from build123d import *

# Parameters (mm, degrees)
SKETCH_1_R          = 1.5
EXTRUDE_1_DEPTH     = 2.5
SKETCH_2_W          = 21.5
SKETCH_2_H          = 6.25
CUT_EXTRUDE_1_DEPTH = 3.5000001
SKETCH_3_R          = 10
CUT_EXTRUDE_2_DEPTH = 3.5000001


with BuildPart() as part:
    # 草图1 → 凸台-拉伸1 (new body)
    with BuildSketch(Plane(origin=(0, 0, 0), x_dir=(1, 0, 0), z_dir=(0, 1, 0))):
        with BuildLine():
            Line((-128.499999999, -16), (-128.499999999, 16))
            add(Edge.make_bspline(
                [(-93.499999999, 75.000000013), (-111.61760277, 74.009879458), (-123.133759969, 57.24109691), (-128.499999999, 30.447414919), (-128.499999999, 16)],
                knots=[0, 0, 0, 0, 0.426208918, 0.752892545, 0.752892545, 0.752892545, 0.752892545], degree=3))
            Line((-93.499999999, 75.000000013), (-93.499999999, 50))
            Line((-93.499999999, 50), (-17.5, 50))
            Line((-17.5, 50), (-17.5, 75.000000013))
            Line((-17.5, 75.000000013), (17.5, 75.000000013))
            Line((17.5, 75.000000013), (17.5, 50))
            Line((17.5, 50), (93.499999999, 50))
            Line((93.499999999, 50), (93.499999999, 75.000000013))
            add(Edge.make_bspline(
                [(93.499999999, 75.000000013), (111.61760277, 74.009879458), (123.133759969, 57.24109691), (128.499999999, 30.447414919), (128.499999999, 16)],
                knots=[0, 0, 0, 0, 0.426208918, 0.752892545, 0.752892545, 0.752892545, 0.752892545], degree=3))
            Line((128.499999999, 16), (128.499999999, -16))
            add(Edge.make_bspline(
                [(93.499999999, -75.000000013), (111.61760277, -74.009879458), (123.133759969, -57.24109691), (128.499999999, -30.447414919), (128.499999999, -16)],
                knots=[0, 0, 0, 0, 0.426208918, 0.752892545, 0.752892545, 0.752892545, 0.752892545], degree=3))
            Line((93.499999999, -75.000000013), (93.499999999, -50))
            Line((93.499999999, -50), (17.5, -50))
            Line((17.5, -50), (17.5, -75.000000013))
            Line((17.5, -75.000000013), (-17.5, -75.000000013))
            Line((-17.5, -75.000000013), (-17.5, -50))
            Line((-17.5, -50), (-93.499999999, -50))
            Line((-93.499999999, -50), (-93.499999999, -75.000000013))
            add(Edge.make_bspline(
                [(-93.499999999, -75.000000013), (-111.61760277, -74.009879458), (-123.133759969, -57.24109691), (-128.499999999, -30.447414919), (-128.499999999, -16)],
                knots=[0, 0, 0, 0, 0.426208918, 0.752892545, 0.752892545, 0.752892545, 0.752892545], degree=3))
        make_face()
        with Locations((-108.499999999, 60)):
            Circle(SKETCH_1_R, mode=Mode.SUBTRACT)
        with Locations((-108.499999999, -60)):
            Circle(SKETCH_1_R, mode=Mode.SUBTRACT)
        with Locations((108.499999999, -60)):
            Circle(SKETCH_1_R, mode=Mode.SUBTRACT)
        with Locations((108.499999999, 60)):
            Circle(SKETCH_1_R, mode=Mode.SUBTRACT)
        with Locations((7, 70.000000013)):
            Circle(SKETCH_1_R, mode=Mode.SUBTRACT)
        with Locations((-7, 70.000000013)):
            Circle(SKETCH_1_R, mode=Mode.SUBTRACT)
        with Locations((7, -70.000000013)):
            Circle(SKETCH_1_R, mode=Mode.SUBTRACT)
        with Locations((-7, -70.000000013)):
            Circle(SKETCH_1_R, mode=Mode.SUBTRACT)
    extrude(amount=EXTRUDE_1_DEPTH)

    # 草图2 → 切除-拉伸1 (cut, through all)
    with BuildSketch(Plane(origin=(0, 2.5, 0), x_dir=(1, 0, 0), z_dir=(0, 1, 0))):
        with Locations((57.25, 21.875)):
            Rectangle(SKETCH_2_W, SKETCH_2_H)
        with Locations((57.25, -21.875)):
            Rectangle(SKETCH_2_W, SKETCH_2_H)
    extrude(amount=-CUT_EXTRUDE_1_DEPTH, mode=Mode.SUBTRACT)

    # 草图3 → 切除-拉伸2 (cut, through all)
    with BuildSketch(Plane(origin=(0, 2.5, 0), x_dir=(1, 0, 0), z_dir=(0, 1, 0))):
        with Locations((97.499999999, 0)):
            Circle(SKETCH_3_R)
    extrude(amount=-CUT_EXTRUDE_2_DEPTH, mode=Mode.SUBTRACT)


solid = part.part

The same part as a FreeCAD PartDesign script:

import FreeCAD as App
import Part
import Sketcher
from FreeCAD import Vector

doc = App.newDocument("Part")
body = doc.addObject("PartDesign::Body", "Body")

sketch1 = doc.addObject("Sketcher::SketchObject", "Sketch")
body.addObject(sketch1)
sketch1.AttachmentSupport = (doc.XZ_Plane, [""])
sketch1.MapMode = "FlatFace"
sketch1.addGeometry([
    Part.LineSegment(Vector(-128.5, -16, 0), Vector(-128.5, 16, 0)),
    Part.BSplineCurve([Vector(-93.5, 75, 0), Vector(-111.617603, 74.009879, 0), Vector(-123.13376, 57.241097, 0), Vector(-128.5, 30.447415, 0), Vector(-128.5, 16, 0)], [4, 1, 4], [0, 0.426208918, 0.752892545], False, 3, [1, 1, 1, 1, 1], False),
    Part.LineSegment(Vector(-93.5, 75, 0), Vector(-93.5, 50, 0)),
    Part.LineSegment(Vector(-93.5, 50, 0), Vector(-17.5, 50, 0)),
    Part.LineSegment(Vector(-17.5, 50, 0), Vector(-17.5, 75, 0)),
    Part.LineSegment(Vector(-17.5, 75, 0), Vector(17.5, 75, 0)),
    Part.LineSegment(Vector(17.5, 75, 0), Vector(17.5, 50, 0)),
    Part.LineSegment(Vector(17.5, 50, 0), Vector(93.5, 50, 0)),
    Part.LineSegment(Vector(93.5, 50, 0), Vector(93.5, 75, 0)),
    Part.BSplineCurve([Vector(93.5, 75, 0), Vector(111.617603, 74.009879, 0), Vector(123.13376, 57.241097, 0), Vector(128.5, 30.447415, 0), Vector(128.5, 16, 0)], [4, 1, 4], [0, 0.426208918, 0.752892545], False, 3, [1, 1, 1, 1, 1], False),
    Part.LineSegment(Vector(128.5, 16, 0), Vector(128.5, -16, 0)),
    Part.BSplineCurve([Vector(93.5, -75, 0), Vector(111.617603, -74.009879, 0), Vector(123.13376, -57.241097, 0), Vector(128.5, -30.447415, 0), Vector(128.5, -16, 0)], [4, 1, 4], [0, 0.426208918, 0.752892545], False, 3, [1, 1, 1, 1, 1], False),
    Part.LineSegment(Vector(93.5, -75, 0), Vector(93.5, -50, 0)),
    Part.LineSegment(Vector(93.5, -50, 0), Vector(17.5, -50, 0)),
    Part.LineSegment(Vector(17.5, -50, 0), Vector(17.5, -75, 0)),
    Part.LineSegment(Vector(17.5, -75, 0), Vector(-17.5, -75, 0)),
    Part.LineSegment(Vector(-17.5, -75, 0), Vector(-17.5, -50, 0)),
    Part.LineSegment(Vector(-17.5, -50, 0), Vector(-93.5, -50, 0)),
    Part.LineSegment(Vector(-93.5, -50, 0), Vector(-93.5, -75, 0)),
    Part.BSplineCurve([Vector(-93.5, -75, 0), Vector(-111.617603, -74.009879, 0), Vector(-123.13376, -57.241097, 0), Vector(-128.5, -30.447415, 0), Vector(-128.5, -16, 0)], [4, 1, 4], [0, 0.426208918, 0.752892545], False, 3, [1, 1, 1, 1, 1], False),
    Part.Circle(Vector(108.5, 60, 0), Vector(0, 0, 1), 1.5),
    Part.Circle(Vector(7, 70, 0), Vector(0, 0, 1), 1.5),
    Part.Circle(Vector(-7, 70, 0), Vector(0, 0, 1), 1.5),
    Part.Circle(Vector(-108.5, 60, 0), Vector(0, 0, 1), 1.5),
    Part.Circle(Vector(108.5, -60, 0), Vector(0, 0, 1), 1.5),
    Part.Circle(Vector(7, -70, 0), Vector(0, 0, 1), 1.5),
    Part.Circle(Vector(-7, -70, 0), Vector(0, 0, 1), 1.5),
    Part.Circle(Vector(-108.5, -60, 0), Vector(0, 0, 1), 1.5),
], False)
sketch1.addConstraint([
    Sketcher.Constraint("Block", 1),
    Sketcher.Constraint("Block", 9),
    Sketcher.Constraint("Block", 11),
    Sketcher.Constraint("Block", 19),
    Sketcher.Constraint("Coincident", 0, 2, 1, 2),
    Sketcher.Constraint("Coincident", 1, 1, 2, 1),
    Sketcher.Constraint("Coincident", 2, 2, 3, 1),
    Sketcher.Constraint("Coincident", 3, 2, 4, 1),
    Sketcher.Constraint("Coincident", 4, 2, 5, 1),
    Sketcher.Constraint("Coincident", 5, 2, 6, 1),
    Sketcher.Constraint("Coincident", 6, 2, 7, 1),
    Sketcher.Constraint("Coincident", 7, 2, 8, 1),
    Sketcher.Constraint("Coincident", 8, 2, 9, 1),
    Sketcher.Constraint("Coincident", 9, 2, 10, 1),
    Sketcher.Constraint("Coincident", 10, 2, 11, 2),
    Sketcher.Constraint("Coincident", 11, 1, 12, 1),
    Sketcher.Constraint("Coincident", 12, 2, 13, 1),
    Sketcher.Constraint("Coincident", 13, 2, 14, 1),
    Sketcher.Constraint("Coincident", 14, 2, 15, 1),
    Sketcher.Constraint("Coincident", 15, 2, 16, 1),
    Sketcher.Constraint("Coincident", 16, 2, 17, 1),
    Sketcher.Constraint("Coincident", 17, 2, 18, 1),
    Sketcher.Constraint("Coincident", 18, 2, 19, 1),
    Sketcher.Constraint("Coincident", 19, 2, 0, 1),
    Sketcher.Constraint("Vertical", 2),
    Sketcher.Constraint("Horizontal", 3),
    Sketcher.Constraint("Vertical", 4),
    Sketcher.Constraint("Horizontal", 5),
    Sketcher.Constraint("Vertical", 6),
    Sketcher.Constraint("Horizontal", 7),
    Sketcher.Constraint("Vertical", 8),
    Sketcher.Constraint("Vertical", 12),
    Sketcher.Constraint("Horizontal", 13),
    Sketcher.Constraint("Vertical", 14),
    Sketcher.Constraint("Horizontal", 15),
    Sketcher.Constraint("Vertical", 16),
    Sketcher.Constraint("Horizontal", 17),
    Sketcher.Constraint("Vertical", 18),
    Sketcher.Constraint("Equal", 20, 21),
    Sketcher.Constraint("Equal", 21, 22),
    Sketcher.Constraint("Equal", 22, 23),
    Sketcher.Constraint("Equal", 23, 24),
    Sketcher.Constraint("Equal", 24, 25),
    Sketcher.Constraint("Equal", 25, 26),
    Sketcher.Constraint("Equal", 26, 27),
    Sketcher.Constraint("Symmetric", 23, 3, 24, 3, -1, 1),
    Sketcher.Constraint("Symmetric", 22, 3, 25, 3, -1, 1),
    Sketcher.Constraint("Symmetric", 21, 3, 26, 3, -1, 1),
    Sketcher.Constraint("Symmetric", 20, 3, 27, 3, -1, 1),
    Sketcher.Constraint("Symmetric", 3, 2, 13, 2, -1, 1),
    Sketcher.Constraint("Symmetric", 5, 2, 15, 2, -1, 1),
    Sketcher.Constraint("Symmetric", 21, 3, 22, 3, -2),
    Sketcher.Constraint("Symmetric", 20, 3, 23, 3, -2),
    Sketcher.Constraint("Symmetric", 3, 2, 6, 2, -2),
    Sketcher.Constraint("Horizontal", 5, 2, 8, 2),
    Sketcher.Constraint("Horizontal", 13, 2, 16, 2),
    Sketcher.Constraint("Diameter", 20, 3.0),
    Sketcher.Constraint("DistanceX", 3, 1, 3, 2, 76.0),
    Sketcher.Constraint("DistanceY", 2, 2, 2, 1, 25.0),
    Sketcher.Constraint("DistanceY", -1, 1, 20, 3, 60.0),
    Sketcher.Constraint("DistanceX", -1, 1, 21, 3, 7.0),
    Sketcher.Constraint("DistanceY", -1, 1, 21, 3, 70.0),
    Sketcher.Constraint("DistanceX", 23, 3, 20, 3, 217.0),
])
pad1 = doc.addObject("PartDesign::Pad", "Pad")
body.addObject(pad1)
pad1.Profile = sketch1
pad1.Length = 2.5
pad1.Reversed = True

sketch2 = doc.addObject("Sketcher::SketchObject", "Sketch001")
body.addObject(sketch2)
sketch2.AttachmentSupport = (doc.XZ_Plane, [""])
sketch2.MapMode = "FlatFace"
sketch2.AttachmentOffset = App.Placement(Vector(0, 0, -2.5), App.Rotation())
sketch2.addGeometry([
    Part.LineSegment(Vector(46.5, -25, 0), Vector(46.5, -18.75, 0)),
    Part.LineSegment(Vector(46.5, -18.75, 0), Vector(68, -18.75, 0)),
    Part.LineSegment(Vector(68, -18.75, 0), Vector(68, -25, 0)),
    Part.LineSegment(Vector(68, -25, 0), Vector(46.5, -25, 0)),
    Part.LineSegment(Vector(46.5, 18.75, 0), Vector(46.5, 25, 0)),
    Part.LineSegment(Vector(46.5, 25, 0), Vector(68, 25, 0)),
    Part.LineSegment(Vector(68, 25, 0), Vector(68, 18.75, 0)),
    Part.LineSegment(Vector(68, 18.75, 0), Vector(46.5, 18.75, 0)),
], False)
sketch2.addConstraint([
    Sketcher.Constraint("Coincident", 0, 2, 1, 1),
    Sketcher.Constraint("Coincident", 1, 2, 2, 1),
    Sketcher.Constraint("Coincident", 2, 2, 3, 1),
    Sketcher.Constraint("Coincident", 3, 2, 0, 1),
    Sketcher.Constraint("Coincident", 4, 2, 5, 1),
    Sketcher.Constraint("Coincident", 5, 2, 6, 1),
    Sketcher.Constraint("Coincident", 6, 2, 7, 1),
    Sketcher.Constraint("Coincident", 7, 2, 4, 1),
    Sketcher.Constraint("Vertical", 0),
    Sketcher.Constraint("Horizontal", 1),
    Sketcher.Constraint("Vertical", 2),
    Sketcher.Constraint("Horizontal", 3),
    Sketcher.Constraint("Vertical", 4),
    Sketcher.Constraint("Horizontal", 5),
    Sketcher.Constraint("Vertical", 6),
    Sketcher.Constraint("Horizontal", 7),
    Sketcher.Constraint("Symmetric", 3, 2, 4, 2, -1),
    Sketcher.Constraint("Symmetric", 1, 2, 6, 2, -1),
    Sketcher.Constraint("DistanceX", 1, 1, 1, 2, 21.5),
    Sketcher.Constraint("DistanceX", -1, 1, 1, 2, 68.0),
    Sketcher.Constraint("DistanceY", 2, 2, -1, 1, 25.0),
    Sketcher.Constraint("DistanceY", 0, 1, 0, 2, 6.25),
])
pocket1 = doc.addObject("PartDesign::Pocket", "Pocket")
body.addObject(pocket1)
pocket1.Profile = sketch2
pocket1.Type = "ThroughAll"
pocket1.Reversed = True

sketch3 = doc.addObject("Sketcher::SketchObject", "Sketch002")
body.addObject(sketch3)
sketch3.AttachmentSupport = (doc.XZ_Plane, [""])
sketch3.MapMode = "FlatFace"
sketch3.AttachmentOffset = App.Placement(Vector(0, 0, -2.5), App.Rotation())
sketch3.addGeometry(Part.Circle(Vector(97.5, 0, 0), Vector(0, 0, 1), 10), False)
sketch3.addConstraint([
    Sketcher.Constraint("PointOnObject", 0, 3, -1),
    Sketcher.Constraint("Diameter", 0, 20.0),
    Sketcher.Constraint("DistanceX", -1, 1, 0, 3, 97.5),
])
pocket2 = doc.addObject("PartDesign::Pocket", "Pocket001")
body.addObject(pocket2)
pocket2.Profile = sketch3
pocket2.Type = "ThroughAll"
pocket2.Reversed = True

doc.recompute()
